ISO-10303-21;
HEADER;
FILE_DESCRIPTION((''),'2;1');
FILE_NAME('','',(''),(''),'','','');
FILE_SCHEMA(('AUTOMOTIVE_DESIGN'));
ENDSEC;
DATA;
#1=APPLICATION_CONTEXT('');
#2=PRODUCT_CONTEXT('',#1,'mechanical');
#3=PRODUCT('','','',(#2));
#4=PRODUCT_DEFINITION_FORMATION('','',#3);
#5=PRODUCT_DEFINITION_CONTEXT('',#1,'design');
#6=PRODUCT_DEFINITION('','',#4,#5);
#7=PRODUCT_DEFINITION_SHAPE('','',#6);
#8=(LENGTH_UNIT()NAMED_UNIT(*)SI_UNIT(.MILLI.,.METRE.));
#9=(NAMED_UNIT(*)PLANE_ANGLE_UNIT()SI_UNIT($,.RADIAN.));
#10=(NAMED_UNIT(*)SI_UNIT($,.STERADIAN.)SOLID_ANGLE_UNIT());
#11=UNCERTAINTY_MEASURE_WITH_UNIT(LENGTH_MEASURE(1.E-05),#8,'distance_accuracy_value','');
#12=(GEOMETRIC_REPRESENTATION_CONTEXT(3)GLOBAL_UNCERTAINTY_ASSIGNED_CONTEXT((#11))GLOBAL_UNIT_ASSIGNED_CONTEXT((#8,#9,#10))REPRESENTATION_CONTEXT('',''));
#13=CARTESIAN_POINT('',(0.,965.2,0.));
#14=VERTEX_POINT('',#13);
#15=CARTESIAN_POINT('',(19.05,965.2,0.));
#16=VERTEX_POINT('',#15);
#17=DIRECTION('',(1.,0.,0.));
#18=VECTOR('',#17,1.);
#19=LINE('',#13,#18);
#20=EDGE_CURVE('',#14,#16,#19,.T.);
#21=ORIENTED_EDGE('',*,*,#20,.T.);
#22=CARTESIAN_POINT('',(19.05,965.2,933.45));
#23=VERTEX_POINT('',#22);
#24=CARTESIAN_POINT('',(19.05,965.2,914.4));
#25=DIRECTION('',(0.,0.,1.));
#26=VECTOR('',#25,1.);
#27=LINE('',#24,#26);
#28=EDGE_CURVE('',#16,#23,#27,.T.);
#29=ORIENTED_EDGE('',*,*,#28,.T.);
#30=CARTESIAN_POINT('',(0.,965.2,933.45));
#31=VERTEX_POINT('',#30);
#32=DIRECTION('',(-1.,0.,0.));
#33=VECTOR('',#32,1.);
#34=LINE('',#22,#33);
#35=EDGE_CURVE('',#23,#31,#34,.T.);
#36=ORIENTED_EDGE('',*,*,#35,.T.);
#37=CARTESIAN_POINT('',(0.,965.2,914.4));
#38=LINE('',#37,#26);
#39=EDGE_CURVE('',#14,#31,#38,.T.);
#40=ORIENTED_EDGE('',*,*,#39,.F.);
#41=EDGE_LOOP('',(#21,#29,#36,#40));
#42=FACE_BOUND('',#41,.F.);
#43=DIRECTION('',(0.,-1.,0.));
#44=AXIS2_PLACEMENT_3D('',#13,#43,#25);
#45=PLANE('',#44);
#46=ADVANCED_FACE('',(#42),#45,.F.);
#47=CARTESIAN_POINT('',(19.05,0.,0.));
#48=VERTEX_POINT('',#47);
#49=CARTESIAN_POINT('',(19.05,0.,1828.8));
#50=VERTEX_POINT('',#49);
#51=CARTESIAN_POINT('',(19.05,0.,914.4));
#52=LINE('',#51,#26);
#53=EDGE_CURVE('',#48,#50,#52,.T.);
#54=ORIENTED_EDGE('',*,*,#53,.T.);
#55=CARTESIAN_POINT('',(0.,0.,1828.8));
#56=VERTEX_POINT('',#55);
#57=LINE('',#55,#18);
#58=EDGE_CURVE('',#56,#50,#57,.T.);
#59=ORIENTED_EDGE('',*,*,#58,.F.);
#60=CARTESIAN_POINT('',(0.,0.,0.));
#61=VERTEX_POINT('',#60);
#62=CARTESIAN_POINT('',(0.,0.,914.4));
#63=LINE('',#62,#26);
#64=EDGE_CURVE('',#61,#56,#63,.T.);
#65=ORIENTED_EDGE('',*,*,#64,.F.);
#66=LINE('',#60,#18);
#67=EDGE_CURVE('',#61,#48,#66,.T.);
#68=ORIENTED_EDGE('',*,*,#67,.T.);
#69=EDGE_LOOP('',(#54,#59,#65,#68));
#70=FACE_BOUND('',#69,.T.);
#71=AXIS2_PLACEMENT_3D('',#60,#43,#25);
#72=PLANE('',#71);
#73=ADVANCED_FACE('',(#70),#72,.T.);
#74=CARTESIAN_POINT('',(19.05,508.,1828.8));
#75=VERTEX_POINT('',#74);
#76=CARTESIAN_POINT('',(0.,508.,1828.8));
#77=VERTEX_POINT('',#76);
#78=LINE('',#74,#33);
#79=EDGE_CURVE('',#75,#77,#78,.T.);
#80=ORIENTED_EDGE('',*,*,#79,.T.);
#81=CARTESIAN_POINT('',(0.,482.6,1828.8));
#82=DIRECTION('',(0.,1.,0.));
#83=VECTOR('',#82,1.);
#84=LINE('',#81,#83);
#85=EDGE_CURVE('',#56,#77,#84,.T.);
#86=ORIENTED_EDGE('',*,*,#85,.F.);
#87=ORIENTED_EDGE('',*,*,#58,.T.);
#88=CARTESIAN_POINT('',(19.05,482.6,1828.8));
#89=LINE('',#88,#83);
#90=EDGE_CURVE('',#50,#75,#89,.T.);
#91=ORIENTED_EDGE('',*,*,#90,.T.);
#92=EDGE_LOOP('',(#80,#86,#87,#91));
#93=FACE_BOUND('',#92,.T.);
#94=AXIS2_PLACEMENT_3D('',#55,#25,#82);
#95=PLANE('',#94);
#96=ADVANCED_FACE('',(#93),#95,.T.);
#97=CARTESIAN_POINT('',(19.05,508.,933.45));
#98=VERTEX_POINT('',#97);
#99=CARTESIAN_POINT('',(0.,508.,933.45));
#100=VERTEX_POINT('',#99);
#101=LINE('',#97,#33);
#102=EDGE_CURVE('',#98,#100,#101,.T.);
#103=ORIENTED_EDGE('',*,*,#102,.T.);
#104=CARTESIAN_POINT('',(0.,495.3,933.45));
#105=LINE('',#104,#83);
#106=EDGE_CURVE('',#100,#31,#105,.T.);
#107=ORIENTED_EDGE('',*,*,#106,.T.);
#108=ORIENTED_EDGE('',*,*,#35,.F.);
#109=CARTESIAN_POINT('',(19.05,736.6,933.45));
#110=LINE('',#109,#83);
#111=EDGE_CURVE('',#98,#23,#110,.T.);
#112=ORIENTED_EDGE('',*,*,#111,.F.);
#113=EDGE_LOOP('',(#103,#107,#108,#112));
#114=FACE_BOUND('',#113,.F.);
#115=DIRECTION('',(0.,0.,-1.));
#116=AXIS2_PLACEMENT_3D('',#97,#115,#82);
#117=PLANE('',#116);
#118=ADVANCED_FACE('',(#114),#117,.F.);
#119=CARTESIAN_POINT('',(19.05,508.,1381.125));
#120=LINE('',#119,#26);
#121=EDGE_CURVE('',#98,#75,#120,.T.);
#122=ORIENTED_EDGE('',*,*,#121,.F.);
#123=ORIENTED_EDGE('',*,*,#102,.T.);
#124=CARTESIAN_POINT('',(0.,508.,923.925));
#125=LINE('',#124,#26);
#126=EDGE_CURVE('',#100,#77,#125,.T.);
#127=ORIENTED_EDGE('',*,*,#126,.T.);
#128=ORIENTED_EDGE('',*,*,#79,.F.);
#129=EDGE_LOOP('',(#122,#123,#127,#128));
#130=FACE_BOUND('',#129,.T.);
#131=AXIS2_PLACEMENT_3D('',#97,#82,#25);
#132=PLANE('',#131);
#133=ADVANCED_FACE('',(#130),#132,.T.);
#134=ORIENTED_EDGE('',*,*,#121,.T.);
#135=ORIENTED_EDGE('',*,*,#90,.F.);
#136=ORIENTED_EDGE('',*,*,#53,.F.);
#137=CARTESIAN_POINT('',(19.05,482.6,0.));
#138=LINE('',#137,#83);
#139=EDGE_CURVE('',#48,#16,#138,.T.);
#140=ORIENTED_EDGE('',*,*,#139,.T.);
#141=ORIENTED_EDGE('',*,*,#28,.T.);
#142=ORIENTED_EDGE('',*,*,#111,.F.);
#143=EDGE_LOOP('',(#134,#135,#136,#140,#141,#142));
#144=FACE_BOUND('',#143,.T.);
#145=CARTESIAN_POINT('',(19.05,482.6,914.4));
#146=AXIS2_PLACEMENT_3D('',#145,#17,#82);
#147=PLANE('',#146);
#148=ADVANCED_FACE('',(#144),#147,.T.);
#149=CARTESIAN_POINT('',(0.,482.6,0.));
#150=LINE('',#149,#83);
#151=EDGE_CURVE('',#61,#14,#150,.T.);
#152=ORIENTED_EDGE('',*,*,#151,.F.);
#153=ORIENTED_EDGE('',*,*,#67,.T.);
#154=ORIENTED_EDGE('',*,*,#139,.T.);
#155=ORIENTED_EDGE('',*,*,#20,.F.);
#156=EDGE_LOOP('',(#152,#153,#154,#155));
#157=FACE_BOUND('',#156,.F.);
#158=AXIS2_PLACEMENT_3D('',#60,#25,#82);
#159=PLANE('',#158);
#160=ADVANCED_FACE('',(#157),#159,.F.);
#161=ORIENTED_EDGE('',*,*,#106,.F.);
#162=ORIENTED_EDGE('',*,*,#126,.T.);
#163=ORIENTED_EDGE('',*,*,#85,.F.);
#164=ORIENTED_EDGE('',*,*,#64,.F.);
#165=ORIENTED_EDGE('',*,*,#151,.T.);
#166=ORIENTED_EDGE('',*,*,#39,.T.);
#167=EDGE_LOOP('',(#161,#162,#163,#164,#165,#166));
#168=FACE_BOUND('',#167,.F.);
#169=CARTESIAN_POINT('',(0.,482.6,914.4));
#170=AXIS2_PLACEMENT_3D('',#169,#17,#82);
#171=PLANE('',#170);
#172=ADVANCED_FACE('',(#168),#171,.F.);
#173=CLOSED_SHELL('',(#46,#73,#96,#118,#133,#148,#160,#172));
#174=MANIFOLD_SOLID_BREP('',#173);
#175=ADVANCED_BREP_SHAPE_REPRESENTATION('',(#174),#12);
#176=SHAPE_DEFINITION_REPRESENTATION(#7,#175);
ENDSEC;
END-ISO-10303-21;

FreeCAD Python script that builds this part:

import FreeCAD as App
import Part
import Sketcher

V = App.Vector
Q = App.Units.Quantity


def add_polygon(sketch, points):
    """Adds a closed chain of lines whose ends are joined by coincident constraints."""
    first, n = sketch.GeometryCount, len(points)
    for a, b in zip(points, points[1:] + points[:1]):
        sketch.addGeometry(Part.LineSegment(App.Vector(*a, 0), App.Vector(*b, 0)), False)
    for i in range(n):
        sketch.addConstraint(Sketcher.Constraint("Coincident", first + i, 2, first + (i + 1) % n, 1))

doc = App.newDocument("Part")
body = doc.addObject("PartDesign::Body", "Body")

sketch1 = body.newObject("Sketcher::SketchObject", "Sketch")
sketch1.AttachmentSupport = (doc.getObject("YZ_Plane"), [""])
sketch1.MapMode = "FlatFace"
add_polygon(sketch1, [(0, 1828.8), (0, 0), (965.2, 0), (965.2, 1828.8)])
sketch1.addConstraint([
    Sketcher.Constraint("Vertical", 0),
    Sketcher.Constraint("Horizontal", 1),
    Sketcher.Constraint("Vertical", 2),
    Sketcher.Constraint("Horizontal", 3),
    Sketcher.Constraint("Coincident", 0, 2, -1, 1),
    Sketcher.Constraint("DistanceX", 1, 1, 1, 2, Q("38 in")),
    Sketcher.Constraint("DistanceY", 0, 2, 0, 1, Q("72 in")),
])
pad1 = body.newObject("PartDesign::Pad", "Pad")
pad1.Profile = sketch1
pad1.Length = Q("0.75 in")

sketch2 = body.newObject("Sketcher::SketchObject", "Sketch001")
sketch2.AttachmentSupport = (doc.getObject("YZ_Plane"), [""])
sketch2.MapMode = "FlatFace"
sketch2.AttachmentOffset = App.Placement(V(0, 0, 0.75 * 25.4), App.Rotation())
add_polygon(sketch2, [(508, 1828.8), (508, 933.45), (965.2, 933.45), (965.2, 1828.8)])
sketch2.addConstraint([
    Sketcher.Constraint("Vertical", 0),
    Sketcher.Constraint("Horizontal", 1),
    Sketcher.Constraint("Vertical", 2),
    Sketcher.Constraint("Horizontal", 3),
    Sketcher.Constraint("DistanceX", 1, 1, 1, 2, Q("18 in")),
    Sketcher.Constraint("DistanceX", -1, 1, 0, 2, Q("20 in")),
    Sketcher.Constraint("DistanceY", -1, 1, 2, 2, Q("72 in")),
    Sketcher.Constraint("DistanceY", 0, 2, 0, 1, Q("35.25 in")),
])
pocket1 = body.newObject("PartDesign::Pocket", "Pocket")
pocket1.Profile = sketch2
pocket1.Type = "ThroughAll"

doc.recompute()
